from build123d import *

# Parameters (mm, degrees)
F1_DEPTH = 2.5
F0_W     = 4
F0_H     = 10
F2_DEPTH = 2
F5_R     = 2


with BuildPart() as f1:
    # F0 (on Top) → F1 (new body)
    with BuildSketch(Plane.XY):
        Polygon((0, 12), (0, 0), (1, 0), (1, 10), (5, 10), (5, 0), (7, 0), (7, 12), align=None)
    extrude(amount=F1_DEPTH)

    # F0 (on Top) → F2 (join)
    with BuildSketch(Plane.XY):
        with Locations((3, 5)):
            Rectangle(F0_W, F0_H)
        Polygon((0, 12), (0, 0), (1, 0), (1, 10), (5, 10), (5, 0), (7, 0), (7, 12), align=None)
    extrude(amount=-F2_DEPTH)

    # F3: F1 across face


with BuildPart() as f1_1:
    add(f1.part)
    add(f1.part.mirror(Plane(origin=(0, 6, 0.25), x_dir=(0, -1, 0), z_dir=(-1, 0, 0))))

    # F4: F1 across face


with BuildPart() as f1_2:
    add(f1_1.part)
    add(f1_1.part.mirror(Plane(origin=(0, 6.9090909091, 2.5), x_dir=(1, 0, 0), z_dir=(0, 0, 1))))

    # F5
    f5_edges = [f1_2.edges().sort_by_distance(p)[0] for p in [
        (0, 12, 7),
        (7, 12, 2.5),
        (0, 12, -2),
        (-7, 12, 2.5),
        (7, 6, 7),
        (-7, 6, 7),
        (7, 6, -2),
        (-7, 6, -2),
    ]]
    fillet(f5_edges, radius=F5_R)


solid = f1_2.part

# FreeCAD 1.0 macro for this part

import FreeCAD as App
import Part
import Sketcher

V = App.Vector
Q = App.Units.Quantity


def edges_at(feature, points):
    """Names of the edges that pass closest to the given points."""
    edges = feature.Shape.Edges
    near = lambda p: min(range(len(edges)), key=lambda i: edges[i].distToShape(Part.Vertex(*p))[0])
    return sorted({f"Edge{near(p) + 1}" for p in points})

doc = App.newDocument("Part")
body = doc.addObject("PartDesign::Body", "Body")

# Sketch on XY plane
sketch1 = body.newObject("Sketcher::SketchObject", "Sketch")
sketch1.AttachmentSupport = (doc.getObject("XY_Plane"), [""])
sketch1.MapMode = "FlatFace"
sketch1.addGeometry(Part.LineSegment(V(0, 12, 0), V(0, 0, 0)), False)
sketch1.addGeometry(Part.LineSegment(V(0, 0, 0), V(1, 0, 0)), False)
sketch1.addGeometry(Part.LineSegment(V(1, 0, 0), V(1, 10, 0)), False)
sketch1.addGeometry(Part.LineSegment(V(1, 10, 0), V(5, 10, 0)), False)
sketch1.addGeometry(Part.LineSegment(V(5, 10, 0), V(5, 0, 0)), False)
sketch1.addGeometry(Part.LineSegment(V(5, 0, 0), V(7, 0, 0)), False)
sketch1.addGeometry(Part.LineSegment(V(7, 0, 0), V(7, 12, 0)), False)
sketch1.addGeometry(Part.LineSegment(V(7, 12, 0), V(0, 12, 0)), False)
sketch1.addConstraint(Sketcher.Constraint("Coincident", 0, 2, 1, 1))
sketch1.addConstraint(Sketcher.Constraint("Coincident", 1, 2, 2, 1))
sketch1.addConstraint(Sketcher.Constraint("Coincident", 2, 2, 3, 1))
sketch1.addConstraint(Sketcher.Constraint("Coincident", 3, 2, 4, 1))
sketch1.addConstraint(Sketcher.Constraint("Coincident", 4, 2, 5, 1))
sketch1.addConstraint(Sketcher.Constraint("Coincident", 5, 2, 6, 1))
sketch1.addConstraint(Sketcher.Constraint("Coincident", 6, 2, 7, 1))
sketch1.addConstraint(Sketcher.Constraint("Coincident", 7, 2, 0, 1))
sketch1.addConstraint(Sketcher.Constraint("Vertical", 0))
sketch1.addConstraint(Sketcher.Constraint("Horizontal", 1))
sketch1.addConstraint(Sketcher.Constraint("Vertical", 2))
sketch1.addConstraint(Sketcher.Constraint("Horizontal", 3))
sketch1.addConstraint(Sketcher.Constraint("Vertical", 4))
sketch1.addConstraint(Sketcher.Constraint("Horizontal", 5))
sketch1.addConstraint(Sketcher.Constraint("Vertical", 6))
sketch1.addConstraint(Sketcher.Constraint("Horizontal", 7))
sketch1.addConstraint(Sketcher.Constraint("Coincident", 0, 2, -1, 1))
sketch1.addConstraint(Sketcher.Constraint("PointOnObject", 4, 2, -1))
sketch1.addConstraint(Sketcher.Constraint("DistanceX", 1, 1, 1, 2, Q("1 mm")))
sketch1.addConstraint(Sketcher.Constraint("DistanceX", 3, 1, 3, 2, Q("4 mm")))
sketch1.addConstraint(Sketcher.Constraint("DistanceX", 5, 1, 5, 2, Q("2 mm")))
sketch1.addConstraint(Sketcher.Constraint("DistanceY", 0, 2, 0, 1, Q("12 mm")))
sketch1.addConstraint(Sketcher.Constraint("DistanceY", 2, 1, 2, 2, Q("10 mm")))
pad1 = body.newObject("PartDesign::Pad", "Pad")
pad1.Profile = sketch1
pad1.Length = 2.5

# Sketch on XY plane
sketch2 = body.newObject("Sketcher::SketchObject", "Sketch001")
sketch2.AttachmentSupport = (doc.getObject("XY_Plane"), [""])
sketch2.MapMode = "FlatFace"
sketch2.addGeometry(Part.LineSegment(V(7, 0, 0), V(7, 12, 0)), False)
sketch2.addGeometry(Part.LineSegment(V(7, 12, 0), V(0, 12, 0)), False)
sketch2.addGeometry(Part.LineSegment(V(0, 12, 0), V(0, 0, 0)), False)
sketch2.addGeometry(Part.LineSegment(V(0, 0, 0), V(7, 0, 0)), False)
sketch2.addConstraint(Sketcher.Constraint("Coincident", 0, 2, 1, 1))
sketch2.addConstraint(Sketcher.Constraint("Coincident", 1, 2, 2, 1))
sketch2.addConstraint(Sketcher.Constraint("Coincident", 2, 2, 3, 1))
sketch2.addConstraint(Sketcher.Constraint("Coincident", 3, 2, 0, 1))
sketch2.addConstraint(Sketcher.Constraint("Vertical", 0))
sketch2.addConstraint(Sketcher.Constraint("Horizontal", 1))
sketch2.addConstraint(Sketcher.Constraint("Vertical", 2))
sketch2.addConstraint(Sketcher.Constraint("Horizontal", 3))
sketch2.addConstraint(Sketcher.Constraint("Coincident", 2, 2, -1, 1))
sketch2.addConstraint(Sketcher.Constraint("DistanceX", 1, 2, 1, 1, Q("7 mm")))
sketch2.addConstraint(Sketcher.Constraint("DistanceY", 0, 1, 0, 2, Q("12 mm")))
pad2 = body.newObject("PartDesign::Pad", "Pad001")
pad2.Profile = sketch2
pad2.Length = 2
pad2.Reversed = True
body2 = doc.addObject("PartDesign::Body", "Body001")
doc.recompute()

body2.BaseFeature = body
doc.recompute()

mirroring = doc.addObject("Part::Mirroring", "Mirroring")
mirroring.Source = body
mirroring.Base = V(0, 6, 0.25)
mirroring.Normal = V(-1, 0, 0)
body3 = doc.addObject("PartDesign::Body", "Body002")
body3.BaseFeature = mirroring
boolean = body2.newObject("PartDesign::Boolean", "Boolean")
boolean.Type = "Fuse"
boolean.addObjects([body3])
doc.recompute()
body4 = doc.addObject("PartDesign::Body", "Body003")
doc.recompute()

body4.BaseFeature = body2
doc.recompute()

mirroring2 = doc.addObject("Part::Mirroring", "Mirroring001")
mirroring2.Source = body2
mirroring2.Base = V(0, 6.909091, 2.5)
mirroring2.Normal = V(0, 0, 1)
body5 = doc.addObject("PartDesign::Body", "Body004")
body5.BaseFeature = mirroring2
boolean2 = body4.newObject("PartDesign::Boolean", "Boolean001")
boolean2.Type = "Fuse"
boolean2.addObjects([body5])
doc.recompute()

fillet = body4.newObject("PartDesign::Fillet", "Fillet")
fillet.Base = (boolean2, edges_at(boolean2, [
    (0, 12, 7),
    (7, 12, 2.5),
    (0, 12, -2),
    (-7, 12, 2.5),
    (7, 6, 7),
    (-7, 6, 7),
    (7, 6, -2),
    (-7, 6, -2),
]))
fillet.Radius = 2
mirroring.Visibility = False
mirroring2.Visibility = False

doc.recompute()
